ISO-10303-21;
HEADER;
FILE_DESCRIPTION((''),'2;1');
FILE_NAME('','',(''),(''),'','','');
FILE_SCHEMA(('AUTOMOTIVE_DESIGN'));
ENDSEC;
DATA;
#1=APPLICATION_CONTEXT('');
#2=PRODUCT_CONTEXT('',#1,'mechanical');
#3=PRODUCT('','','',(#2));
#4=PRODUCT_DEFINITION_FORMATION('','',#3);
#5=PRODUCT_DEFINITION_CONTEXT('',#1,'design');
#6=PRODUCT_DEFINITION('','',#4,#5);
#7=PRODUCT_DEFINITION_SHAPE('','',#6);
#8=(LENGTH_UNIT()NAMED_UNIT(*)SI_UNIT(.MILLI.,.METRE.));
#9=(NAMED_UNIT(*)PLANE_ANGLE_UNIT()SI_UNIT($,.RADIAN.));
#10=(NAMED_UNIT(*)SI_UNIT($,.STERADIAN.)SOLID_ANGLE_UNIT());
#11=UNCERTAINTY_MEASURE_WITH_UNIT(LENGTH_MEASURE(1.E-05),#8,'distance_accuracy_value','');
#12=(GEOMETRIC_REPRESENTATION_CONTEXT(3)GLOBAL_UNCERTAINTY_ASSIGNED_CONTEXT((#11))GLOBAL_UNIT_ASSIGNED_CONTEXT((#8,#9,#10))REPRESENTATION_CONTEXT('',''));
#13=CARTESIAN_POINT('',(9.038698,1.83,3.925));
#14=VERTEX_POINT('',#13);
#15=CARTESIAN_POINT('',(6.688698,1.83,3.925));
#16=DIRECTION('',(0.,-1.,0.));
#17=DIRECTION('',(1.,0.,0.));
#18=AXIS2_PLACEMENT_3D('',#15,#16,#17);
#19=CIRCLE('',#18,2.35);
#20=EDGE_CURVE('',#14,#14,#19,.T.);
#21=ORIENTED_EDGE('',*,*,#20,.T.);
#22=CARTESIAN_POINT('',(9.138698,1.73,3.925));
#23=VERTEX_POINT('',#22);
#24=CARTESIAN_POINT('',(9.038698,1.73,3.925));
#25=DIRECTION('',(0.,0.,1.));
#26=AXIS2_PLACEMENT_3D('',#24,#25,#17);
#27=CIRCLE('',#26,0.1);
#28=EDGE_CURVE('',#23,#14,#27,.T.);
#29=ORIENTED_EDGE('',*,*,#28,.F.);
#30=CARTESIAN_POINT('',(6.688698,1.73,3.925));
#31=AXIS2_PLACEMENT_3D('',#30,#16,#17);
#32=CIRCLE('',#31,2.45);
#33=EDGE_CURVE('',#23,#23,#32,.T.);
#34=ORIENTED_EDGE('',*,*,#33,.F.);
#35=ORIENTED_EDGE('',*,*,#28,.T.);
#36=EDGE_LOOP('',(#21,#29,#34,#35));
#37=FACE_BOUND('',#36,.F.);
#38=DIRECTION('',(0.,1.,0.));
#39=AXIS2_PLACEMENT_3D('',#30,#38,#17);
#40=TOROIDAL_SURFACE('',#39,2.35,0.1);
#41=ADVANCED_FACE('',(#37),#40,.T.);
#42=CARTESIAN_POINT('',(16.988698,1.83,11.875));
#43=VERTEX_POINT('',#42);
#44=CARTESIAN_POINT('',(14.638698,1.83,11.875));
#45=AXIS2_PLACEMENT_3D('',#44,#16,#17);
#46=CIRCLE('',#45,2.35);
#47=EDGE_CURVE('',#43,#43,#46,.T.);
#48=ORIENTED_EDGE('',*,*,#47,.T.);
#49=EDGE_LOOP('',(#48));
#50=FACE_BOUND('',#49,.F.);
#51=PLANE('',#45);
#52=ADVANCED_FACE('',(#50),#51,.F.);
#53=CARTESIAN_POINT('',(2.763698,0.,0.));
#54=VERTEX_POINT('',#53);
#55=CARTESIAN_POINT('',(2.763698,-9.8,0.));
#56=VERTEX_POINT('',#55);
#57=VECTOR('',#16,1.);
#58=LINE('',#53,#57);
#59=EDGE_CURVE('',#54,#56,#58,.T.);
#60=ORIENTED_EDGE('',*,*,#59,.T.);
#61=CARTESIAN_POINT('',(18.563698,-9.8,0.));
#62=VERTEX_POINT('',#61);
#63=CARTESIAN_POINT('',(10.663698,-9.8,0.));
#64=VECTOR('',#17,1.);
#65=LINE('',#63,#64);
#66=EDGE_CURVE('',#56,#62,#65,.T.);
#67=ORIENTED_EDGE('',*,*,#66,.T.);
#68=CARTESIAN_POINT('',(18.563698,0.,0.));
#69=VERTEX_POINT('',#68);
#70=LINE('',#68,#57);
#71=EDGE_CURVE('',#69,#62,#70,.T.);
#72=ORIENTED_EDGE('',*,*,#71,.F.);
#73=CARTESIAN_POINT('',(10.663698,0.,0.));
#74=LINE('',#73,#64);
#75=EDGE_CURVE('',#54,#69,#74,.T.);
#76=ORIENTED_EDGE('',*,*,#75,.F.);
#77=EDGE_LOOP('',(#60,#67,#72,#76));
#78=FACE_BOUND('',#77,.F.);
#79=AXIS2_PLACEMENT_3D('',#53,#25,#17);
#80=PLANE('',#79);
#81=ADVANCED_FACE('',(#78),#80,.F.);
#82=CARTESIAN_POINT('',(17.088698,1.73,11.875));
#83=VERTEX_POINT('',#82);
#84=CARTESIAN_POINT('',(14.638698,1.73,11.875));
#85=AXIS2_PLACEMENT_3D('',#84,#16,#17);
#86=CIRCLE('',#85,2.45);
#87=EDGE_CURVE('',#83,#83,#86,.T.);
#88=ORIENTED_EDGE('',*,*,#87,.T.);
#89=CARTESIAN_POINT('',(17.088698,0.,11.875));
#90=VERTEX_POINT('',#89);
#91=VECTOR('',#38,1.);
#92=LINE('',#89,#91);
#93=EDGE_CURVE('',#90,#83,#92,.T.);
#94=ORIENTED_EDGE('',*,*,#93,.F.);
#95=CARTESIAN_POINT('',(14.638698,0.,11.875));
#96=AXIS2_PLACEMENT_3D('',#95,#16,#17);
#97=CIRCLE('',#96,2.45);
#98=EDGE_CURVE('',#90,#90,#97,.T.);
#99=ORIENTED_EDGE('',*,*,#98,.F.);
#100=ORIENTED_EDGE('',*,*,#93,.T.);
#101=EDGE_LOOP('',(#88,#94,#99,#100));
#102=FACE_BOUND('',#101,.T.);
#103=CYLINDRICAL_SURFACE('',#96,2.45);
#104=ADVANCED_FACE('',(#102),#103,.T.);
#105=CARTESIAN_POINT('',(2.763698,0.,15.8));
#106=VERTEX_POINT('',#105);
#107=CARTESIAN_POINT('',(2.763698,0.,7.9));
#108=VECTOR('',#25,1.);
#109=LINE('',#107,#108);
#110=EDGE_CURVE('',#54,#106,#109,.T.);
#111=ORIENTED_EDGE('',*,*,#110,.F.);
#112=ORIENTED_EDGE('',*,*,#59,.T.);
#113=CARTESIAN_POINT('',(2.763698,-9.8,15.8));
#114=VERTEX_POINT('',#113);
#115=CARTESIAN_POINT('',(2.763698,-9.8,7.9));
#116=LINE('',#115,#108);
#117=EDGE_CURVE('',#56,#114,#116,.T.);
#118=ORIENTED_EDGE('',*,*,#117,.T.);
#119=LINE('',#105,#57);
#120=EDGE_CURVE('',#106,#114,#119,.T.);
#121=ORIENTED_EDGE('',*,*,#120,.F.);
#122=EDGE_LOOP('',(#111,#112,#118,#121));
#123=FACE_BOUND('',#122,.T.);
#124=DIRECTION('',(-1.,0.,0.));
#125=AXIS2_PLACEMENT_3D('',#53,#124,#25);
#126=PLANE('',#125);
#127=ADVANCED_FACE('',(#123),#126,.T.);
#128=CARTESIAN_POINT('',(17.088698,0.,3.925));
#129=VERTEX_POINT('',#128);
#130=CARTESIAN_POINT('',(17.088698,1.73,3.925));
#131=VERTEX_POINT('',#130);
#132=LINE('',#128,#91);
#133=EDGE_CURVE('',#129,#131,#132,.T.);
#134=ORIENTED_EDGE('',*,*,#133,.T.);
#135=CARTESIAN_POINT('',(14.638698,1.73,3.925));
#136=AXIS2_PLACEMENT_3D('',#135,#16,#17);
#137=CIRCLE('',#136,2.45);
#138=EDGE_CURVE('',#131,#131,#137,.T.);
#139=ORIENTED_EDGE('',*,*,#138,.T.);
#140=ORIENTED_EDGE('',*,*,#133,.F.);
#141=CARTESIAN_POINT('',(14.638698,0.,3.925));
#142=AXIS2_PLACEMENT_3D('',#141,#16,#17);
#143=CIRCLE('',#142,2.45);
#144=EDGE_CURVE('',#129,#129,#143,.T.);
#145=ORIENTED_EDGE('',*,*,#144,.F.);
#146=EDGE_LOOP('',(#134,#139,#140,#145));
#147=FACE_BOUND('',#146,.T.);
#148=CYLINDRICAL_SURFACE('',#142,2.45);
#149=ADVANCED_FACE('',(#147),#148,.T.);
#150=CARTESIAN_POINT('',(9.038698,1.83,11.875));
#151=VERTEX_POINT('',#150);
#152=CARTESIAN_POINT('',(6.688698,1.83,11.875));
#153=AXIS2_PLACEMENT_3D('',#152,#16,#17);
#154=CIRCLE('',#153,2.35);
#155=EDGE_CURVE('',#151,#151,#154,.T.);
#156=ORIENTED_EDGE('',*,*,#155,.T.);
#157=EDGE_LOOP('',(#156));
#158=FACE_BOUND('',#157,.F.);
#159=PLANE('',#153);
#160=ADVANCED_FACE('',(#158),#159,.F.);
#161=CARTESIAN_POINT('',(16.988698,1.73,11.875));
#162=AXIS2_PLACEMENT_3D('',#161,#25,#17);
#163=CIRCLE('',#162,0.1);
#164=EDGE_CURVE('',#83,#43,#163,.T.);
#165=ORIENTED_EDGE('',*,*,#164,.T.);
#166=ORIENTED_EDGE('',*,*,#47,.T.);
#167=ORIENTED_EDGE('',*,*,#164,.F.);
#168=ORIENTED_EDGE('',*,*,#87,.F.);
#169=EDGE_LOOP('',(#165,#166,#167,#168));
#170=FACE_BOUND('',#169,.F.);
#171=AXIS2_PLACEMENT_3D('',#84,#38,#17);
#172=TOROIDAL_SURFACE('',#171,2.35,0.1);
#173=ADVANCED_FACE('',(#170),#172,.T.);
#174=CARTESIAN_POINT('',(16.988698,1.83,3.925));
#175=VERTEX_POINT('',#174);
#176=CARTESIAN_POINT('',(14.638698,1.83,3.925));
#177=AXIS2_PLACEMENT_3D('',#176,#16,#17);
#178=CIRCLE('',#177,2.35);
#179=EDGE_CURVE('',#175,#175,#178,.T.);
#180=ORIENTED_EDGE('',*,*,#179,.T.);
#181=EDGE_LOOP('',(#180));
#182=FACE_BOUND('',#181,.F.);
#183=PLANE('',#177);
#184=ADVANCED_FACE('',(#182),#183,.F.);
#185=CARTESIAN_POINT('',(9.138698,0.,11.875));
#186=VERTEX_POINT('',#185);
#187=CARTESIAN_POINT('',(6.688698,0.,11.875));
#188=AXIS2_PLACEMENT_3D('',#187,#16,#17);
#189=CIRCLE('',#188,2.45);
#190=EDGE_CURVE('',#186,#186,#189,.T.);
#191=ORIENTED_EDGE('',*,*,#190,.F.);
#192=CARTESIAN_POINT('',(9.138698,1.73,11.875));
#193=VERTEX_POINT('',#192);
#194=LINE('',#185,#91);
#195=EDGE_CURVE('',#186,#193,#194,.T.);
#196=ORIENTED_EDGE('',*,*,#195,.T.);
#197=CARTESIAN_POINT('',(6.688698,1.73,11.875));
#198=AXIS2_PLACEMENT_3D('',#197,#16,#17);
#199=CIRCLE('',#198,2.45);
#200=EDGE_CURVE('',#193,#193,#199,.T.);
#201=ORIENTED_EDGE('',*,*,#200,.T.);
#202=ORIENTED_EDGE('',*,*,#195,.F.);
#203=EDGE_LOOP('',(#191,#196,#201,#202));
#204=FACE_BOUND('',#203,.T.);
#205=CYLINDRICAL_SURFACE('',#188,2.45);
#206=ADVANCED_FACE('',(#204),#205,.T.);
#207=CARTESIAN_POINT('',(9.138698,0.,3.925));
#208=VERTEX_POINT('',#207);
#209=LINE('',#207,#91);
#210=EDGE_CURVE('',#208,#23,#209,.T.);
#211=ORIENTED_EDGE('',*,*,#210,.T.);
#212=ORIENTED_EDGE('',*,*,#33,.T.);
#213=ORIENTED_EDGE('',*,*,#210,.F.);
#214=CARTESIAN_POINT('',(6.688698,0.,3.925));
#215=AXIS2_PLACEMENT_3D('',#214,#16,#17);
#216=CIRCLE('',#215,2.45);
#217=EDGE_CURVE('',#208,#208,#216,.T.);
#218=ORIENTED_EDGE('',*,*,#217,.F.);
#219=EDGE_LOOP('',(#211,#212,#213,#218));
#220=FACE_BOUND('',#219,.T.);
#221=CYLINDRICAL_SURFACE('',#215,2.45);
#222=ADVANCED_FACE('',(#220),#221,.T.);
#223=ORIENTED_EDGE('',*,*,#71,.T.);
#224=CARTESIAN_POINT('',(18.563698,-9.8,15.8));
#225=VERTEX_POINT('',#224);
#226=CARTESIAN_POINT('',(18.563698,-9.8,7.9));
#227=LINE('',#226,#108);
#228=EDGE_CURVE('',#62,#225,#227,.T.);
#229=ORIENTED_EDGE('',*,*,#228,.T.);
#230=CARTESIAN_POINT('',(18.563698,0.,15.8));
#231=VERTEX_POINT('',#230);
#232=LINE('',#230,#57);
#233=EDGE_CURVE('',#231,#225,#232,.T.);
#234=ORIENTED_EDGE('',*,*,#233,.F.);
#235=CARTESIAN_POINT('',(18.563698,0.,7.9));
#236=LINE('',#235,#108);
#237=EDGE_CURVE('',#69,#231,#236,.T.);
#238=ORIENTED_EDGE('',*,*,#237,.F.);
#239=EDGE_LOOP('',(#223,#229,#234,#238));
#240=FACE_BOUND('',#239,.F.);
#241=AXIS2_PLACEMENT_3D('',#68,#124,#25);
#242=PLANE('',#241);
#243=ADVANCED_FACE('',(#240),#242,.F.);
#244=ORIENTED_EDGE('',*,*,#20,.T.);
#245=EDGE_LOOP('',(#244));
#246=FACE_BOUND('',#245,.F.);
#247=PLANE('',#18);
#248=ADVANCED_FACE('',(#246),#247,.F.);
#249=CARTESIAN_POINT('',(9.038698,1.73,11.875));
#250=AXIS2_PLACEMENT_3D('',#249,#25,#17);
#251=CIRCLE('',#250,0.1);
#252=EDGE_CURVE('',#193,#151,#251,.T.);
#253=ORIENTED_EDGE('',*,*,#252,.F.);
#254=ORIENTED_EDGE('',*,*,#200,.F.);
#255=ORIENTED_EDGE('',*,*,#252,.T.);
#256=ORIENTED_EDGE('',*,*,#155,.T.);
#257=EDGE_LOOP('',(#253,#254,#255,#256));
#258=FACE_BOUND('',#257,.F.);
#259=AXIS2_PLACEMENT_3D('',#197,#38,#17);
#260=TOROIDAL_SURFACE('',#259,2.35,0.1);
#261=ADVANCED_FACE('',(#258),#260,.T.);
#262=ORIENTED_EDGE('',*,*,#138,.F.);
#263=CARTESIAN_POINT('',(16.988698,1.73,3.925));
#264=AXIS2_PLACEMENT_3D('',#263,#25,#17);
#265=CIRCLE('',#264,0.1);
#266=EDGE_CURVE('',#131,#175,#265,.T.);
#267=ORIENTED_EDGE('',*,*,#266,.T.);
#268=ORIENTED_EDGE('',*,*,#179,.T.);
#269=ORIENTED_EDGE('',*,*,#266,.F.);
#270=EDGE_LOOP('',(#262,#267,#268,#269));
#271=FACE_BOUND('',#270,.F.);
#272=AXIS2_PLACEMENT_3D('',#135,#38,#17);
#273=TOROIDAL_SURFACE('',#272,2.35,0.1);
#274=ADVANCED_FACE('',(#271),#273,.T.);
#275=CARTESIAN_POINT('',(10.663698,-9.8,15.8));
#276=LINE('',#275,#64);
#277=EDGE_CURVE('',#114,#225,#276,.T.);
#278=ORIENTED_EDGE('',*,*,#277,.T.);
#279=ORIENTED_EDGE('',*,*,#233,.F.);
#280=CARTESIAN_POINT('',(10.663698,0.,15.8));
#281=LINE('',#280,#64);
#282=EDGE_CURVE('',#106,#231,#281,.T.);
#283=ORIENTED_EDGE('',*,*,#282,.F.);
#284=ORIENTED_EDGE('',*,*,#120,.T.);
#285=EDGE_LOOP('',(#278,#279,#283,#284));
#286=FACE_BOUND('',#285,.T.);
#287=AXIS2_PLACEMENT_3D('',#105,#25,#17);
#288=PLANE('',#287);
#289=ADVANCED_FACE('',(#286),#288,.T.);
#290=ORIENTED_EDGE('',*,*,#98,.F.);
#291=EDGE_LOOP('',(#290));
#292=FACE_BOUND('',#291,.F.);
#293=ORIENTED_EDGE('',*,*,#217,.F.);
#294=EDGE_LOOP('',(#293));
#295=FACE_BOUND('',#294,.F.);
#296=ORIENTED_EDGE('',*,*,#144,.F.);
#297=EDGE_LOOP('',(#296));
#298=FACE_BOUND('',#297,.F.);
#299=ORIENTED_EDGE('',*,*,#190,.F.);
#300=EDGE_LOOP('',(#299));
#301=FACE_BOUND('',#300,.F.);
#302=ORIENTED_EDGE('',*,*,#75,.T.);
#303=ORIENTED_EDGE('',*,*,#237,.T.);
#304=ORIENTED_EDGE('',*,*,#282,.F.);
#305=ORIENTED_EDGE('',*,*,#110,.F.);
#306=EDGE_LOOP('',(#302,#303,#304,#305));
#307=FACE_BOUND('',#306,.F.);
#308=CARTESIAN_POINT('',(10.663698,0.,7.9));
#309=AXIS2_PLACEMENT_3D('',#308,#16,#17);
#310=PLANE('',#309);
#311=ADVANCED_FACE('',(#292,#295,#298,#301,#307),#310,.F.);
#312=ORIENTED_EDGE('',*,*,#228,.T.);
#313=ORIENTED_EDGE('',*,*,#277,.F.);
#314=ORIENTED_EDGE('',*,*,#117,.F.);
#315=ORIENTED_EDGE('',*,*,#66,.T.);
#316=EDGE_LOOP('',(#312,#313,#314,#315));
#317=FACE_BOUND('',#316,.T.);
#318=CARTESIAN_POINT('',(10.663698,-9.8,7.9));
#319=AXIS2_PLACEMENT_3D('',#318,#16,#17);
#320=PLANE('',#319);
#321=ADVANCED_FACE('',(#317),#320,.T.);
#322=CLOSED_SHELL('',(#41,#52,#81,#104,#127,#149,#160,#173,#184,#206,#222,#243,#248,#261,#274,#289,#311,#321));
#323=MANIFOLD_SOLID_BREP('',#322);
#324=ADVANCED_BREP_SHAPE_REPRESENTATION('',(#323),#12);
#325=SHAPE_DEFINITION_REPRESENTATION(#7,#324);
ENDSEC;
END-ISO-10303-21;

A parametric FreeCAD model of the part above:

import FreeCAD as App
import Part
import Sketcher

V = App.Vector
Q = App.Units.Quantity


def edges_at(feature, points):
    """Names of the edges that pass closest to the given points."""
    edges = feature.Shape.Edges
    near = lambda p: min(range(len(edges)), key=lambda i: edges[i].distToShape(Part.Vertex(*p))[0])
    return sorted({f"Edge{near(p) + 1}" for p in points})

doc = App.newDocument("Part")
body = doc.addObject("PartDesign::Body", "Body")

sketch1 = body.newObject("Sketcher::SketchObject", "Sketch")
sketch1.AttachmentSupport = (doc.getObject("XZ_Plane"), [""])
sketch1.MapMode = "FlatFace"
sketch1.addGeometry([
    Part.LineSegment(V(3, 16, 0), V(3, 0, 0)),
    Part.LineSegment(V(3, 0, 0), V(19, 0, 0)),
    Part.LineSegment(V(19, 0, 0), V(19, 16, 0)),
    Part.LineSegment(V(19, 16, 0), V(3, 16, 0)),
], False)
sketch1.addConstraint([
    Sketcher.Constraint("Coincident", 0, 2, 1, 1),
    Sketcher.Constraint("Coincident", 1, 2, 2, 1),
    Sketcher.Constraint("Coincident", 2, 2, 3, 1),
    Sketcher.Constraint("Coincident", 3, 2, 0, 1),
    Sketcher.Constraint("Vertical", 0),
    Sketcher.Constraint("Horizontal", 1),
    Sketcher.Constraint("Vertical", 2),
    Sketcher.Constraint("Horizontal", 3),
    Sketcher.Constraint("PointOnObject", 0, 2, -1),
    Sketcher.Constraint("Equal", 3, 0),
    Sketcher.Constraint("DistanceX", 1, 1, 1, 2, Q("15.8 mm")),
    Sketcher.Constraint("DistanceX", -1, 1, 0, 2, Q("2.763698 mm")),
])
pad1 = body.newObject("PartDesign::Pad", "Pad")
pad1.Profile = sketch1
pad1.Length = 9.8

sketch2 = body.newObject("Sketcher::SketchObject", "Sketch001")
sketch2.AttachmentSupport = (doc.getObject("XZ_Plane"), [""])
sketch2.MapMode = "FlatFace"
sketch2.addGeometry([
    Part.Circle(V(6.7, 11.9, 0), V(0, 0, 1), 2.5),
    Part.Circle(V(14.6, 11.9, 0), V(0, 0, 1), 2.5),
    Part.Circle(V(6.7, 3.9, 0), V(0, 0, 1), 2.5),
    Part.Circle(V(14.6, 3.9, 0), V(0, 0, 1), 2.5),
], False)
sketch2.addConstraint([
    Sketcher.Constraint("Equal", 0, 1),
    Sketcher.Constraint("Equal", 1, 2),
    Sketcher.Constraint("Equal", 2, 3),
    Sketcher.Constraint("Horizontal", 0, 3, 1, 3),
    Sketcher.Constraint("Horizontal", 2, 3, 3, 3),
    Sketcher.Constraint("Vertical", 0, 3, 2, 3),
    Sketcher.Constraint("Vertical", 1, 3, 3, 3),
    Sketcher.Constraint("Diameter", 0, Q("4.9 mm")),
    Sketcher.Constraint("DistanceX", 0, 3, 1, 3, Q("7.95 mm")),
    Sketcher.Constraint("DistanceY", 2, 3, 0, 3, Q("7.95 mm")),
    Sketcher.Constraint("DistanceY", -1, 1, 0, 3, Q("11.875 mm")),
    Sketcher.Constraint("DistanceX", -1, 1, 0, 3, Q("6.688698 mm")),
])
pad2 = body.newObject("PartDesign::Pad", "Pad001")
pad2.Profile = sketch2
pad2.Length = 1.83
pad2.Reversed = True
doc.recompute()

fillet = body.newObject("PartDesign::Fillet", "Fillet")
fillet.Base = (pad2, edges_at(pad2, [
    (12.189, 1.83, 11.875),
    (4.239, 1.83, 11.875),
    (4.239, 1.83, 3.925),
    (12.189, 1.83, 3.925),
]))
fillet.Radius = 0.1

doc.recompute()
